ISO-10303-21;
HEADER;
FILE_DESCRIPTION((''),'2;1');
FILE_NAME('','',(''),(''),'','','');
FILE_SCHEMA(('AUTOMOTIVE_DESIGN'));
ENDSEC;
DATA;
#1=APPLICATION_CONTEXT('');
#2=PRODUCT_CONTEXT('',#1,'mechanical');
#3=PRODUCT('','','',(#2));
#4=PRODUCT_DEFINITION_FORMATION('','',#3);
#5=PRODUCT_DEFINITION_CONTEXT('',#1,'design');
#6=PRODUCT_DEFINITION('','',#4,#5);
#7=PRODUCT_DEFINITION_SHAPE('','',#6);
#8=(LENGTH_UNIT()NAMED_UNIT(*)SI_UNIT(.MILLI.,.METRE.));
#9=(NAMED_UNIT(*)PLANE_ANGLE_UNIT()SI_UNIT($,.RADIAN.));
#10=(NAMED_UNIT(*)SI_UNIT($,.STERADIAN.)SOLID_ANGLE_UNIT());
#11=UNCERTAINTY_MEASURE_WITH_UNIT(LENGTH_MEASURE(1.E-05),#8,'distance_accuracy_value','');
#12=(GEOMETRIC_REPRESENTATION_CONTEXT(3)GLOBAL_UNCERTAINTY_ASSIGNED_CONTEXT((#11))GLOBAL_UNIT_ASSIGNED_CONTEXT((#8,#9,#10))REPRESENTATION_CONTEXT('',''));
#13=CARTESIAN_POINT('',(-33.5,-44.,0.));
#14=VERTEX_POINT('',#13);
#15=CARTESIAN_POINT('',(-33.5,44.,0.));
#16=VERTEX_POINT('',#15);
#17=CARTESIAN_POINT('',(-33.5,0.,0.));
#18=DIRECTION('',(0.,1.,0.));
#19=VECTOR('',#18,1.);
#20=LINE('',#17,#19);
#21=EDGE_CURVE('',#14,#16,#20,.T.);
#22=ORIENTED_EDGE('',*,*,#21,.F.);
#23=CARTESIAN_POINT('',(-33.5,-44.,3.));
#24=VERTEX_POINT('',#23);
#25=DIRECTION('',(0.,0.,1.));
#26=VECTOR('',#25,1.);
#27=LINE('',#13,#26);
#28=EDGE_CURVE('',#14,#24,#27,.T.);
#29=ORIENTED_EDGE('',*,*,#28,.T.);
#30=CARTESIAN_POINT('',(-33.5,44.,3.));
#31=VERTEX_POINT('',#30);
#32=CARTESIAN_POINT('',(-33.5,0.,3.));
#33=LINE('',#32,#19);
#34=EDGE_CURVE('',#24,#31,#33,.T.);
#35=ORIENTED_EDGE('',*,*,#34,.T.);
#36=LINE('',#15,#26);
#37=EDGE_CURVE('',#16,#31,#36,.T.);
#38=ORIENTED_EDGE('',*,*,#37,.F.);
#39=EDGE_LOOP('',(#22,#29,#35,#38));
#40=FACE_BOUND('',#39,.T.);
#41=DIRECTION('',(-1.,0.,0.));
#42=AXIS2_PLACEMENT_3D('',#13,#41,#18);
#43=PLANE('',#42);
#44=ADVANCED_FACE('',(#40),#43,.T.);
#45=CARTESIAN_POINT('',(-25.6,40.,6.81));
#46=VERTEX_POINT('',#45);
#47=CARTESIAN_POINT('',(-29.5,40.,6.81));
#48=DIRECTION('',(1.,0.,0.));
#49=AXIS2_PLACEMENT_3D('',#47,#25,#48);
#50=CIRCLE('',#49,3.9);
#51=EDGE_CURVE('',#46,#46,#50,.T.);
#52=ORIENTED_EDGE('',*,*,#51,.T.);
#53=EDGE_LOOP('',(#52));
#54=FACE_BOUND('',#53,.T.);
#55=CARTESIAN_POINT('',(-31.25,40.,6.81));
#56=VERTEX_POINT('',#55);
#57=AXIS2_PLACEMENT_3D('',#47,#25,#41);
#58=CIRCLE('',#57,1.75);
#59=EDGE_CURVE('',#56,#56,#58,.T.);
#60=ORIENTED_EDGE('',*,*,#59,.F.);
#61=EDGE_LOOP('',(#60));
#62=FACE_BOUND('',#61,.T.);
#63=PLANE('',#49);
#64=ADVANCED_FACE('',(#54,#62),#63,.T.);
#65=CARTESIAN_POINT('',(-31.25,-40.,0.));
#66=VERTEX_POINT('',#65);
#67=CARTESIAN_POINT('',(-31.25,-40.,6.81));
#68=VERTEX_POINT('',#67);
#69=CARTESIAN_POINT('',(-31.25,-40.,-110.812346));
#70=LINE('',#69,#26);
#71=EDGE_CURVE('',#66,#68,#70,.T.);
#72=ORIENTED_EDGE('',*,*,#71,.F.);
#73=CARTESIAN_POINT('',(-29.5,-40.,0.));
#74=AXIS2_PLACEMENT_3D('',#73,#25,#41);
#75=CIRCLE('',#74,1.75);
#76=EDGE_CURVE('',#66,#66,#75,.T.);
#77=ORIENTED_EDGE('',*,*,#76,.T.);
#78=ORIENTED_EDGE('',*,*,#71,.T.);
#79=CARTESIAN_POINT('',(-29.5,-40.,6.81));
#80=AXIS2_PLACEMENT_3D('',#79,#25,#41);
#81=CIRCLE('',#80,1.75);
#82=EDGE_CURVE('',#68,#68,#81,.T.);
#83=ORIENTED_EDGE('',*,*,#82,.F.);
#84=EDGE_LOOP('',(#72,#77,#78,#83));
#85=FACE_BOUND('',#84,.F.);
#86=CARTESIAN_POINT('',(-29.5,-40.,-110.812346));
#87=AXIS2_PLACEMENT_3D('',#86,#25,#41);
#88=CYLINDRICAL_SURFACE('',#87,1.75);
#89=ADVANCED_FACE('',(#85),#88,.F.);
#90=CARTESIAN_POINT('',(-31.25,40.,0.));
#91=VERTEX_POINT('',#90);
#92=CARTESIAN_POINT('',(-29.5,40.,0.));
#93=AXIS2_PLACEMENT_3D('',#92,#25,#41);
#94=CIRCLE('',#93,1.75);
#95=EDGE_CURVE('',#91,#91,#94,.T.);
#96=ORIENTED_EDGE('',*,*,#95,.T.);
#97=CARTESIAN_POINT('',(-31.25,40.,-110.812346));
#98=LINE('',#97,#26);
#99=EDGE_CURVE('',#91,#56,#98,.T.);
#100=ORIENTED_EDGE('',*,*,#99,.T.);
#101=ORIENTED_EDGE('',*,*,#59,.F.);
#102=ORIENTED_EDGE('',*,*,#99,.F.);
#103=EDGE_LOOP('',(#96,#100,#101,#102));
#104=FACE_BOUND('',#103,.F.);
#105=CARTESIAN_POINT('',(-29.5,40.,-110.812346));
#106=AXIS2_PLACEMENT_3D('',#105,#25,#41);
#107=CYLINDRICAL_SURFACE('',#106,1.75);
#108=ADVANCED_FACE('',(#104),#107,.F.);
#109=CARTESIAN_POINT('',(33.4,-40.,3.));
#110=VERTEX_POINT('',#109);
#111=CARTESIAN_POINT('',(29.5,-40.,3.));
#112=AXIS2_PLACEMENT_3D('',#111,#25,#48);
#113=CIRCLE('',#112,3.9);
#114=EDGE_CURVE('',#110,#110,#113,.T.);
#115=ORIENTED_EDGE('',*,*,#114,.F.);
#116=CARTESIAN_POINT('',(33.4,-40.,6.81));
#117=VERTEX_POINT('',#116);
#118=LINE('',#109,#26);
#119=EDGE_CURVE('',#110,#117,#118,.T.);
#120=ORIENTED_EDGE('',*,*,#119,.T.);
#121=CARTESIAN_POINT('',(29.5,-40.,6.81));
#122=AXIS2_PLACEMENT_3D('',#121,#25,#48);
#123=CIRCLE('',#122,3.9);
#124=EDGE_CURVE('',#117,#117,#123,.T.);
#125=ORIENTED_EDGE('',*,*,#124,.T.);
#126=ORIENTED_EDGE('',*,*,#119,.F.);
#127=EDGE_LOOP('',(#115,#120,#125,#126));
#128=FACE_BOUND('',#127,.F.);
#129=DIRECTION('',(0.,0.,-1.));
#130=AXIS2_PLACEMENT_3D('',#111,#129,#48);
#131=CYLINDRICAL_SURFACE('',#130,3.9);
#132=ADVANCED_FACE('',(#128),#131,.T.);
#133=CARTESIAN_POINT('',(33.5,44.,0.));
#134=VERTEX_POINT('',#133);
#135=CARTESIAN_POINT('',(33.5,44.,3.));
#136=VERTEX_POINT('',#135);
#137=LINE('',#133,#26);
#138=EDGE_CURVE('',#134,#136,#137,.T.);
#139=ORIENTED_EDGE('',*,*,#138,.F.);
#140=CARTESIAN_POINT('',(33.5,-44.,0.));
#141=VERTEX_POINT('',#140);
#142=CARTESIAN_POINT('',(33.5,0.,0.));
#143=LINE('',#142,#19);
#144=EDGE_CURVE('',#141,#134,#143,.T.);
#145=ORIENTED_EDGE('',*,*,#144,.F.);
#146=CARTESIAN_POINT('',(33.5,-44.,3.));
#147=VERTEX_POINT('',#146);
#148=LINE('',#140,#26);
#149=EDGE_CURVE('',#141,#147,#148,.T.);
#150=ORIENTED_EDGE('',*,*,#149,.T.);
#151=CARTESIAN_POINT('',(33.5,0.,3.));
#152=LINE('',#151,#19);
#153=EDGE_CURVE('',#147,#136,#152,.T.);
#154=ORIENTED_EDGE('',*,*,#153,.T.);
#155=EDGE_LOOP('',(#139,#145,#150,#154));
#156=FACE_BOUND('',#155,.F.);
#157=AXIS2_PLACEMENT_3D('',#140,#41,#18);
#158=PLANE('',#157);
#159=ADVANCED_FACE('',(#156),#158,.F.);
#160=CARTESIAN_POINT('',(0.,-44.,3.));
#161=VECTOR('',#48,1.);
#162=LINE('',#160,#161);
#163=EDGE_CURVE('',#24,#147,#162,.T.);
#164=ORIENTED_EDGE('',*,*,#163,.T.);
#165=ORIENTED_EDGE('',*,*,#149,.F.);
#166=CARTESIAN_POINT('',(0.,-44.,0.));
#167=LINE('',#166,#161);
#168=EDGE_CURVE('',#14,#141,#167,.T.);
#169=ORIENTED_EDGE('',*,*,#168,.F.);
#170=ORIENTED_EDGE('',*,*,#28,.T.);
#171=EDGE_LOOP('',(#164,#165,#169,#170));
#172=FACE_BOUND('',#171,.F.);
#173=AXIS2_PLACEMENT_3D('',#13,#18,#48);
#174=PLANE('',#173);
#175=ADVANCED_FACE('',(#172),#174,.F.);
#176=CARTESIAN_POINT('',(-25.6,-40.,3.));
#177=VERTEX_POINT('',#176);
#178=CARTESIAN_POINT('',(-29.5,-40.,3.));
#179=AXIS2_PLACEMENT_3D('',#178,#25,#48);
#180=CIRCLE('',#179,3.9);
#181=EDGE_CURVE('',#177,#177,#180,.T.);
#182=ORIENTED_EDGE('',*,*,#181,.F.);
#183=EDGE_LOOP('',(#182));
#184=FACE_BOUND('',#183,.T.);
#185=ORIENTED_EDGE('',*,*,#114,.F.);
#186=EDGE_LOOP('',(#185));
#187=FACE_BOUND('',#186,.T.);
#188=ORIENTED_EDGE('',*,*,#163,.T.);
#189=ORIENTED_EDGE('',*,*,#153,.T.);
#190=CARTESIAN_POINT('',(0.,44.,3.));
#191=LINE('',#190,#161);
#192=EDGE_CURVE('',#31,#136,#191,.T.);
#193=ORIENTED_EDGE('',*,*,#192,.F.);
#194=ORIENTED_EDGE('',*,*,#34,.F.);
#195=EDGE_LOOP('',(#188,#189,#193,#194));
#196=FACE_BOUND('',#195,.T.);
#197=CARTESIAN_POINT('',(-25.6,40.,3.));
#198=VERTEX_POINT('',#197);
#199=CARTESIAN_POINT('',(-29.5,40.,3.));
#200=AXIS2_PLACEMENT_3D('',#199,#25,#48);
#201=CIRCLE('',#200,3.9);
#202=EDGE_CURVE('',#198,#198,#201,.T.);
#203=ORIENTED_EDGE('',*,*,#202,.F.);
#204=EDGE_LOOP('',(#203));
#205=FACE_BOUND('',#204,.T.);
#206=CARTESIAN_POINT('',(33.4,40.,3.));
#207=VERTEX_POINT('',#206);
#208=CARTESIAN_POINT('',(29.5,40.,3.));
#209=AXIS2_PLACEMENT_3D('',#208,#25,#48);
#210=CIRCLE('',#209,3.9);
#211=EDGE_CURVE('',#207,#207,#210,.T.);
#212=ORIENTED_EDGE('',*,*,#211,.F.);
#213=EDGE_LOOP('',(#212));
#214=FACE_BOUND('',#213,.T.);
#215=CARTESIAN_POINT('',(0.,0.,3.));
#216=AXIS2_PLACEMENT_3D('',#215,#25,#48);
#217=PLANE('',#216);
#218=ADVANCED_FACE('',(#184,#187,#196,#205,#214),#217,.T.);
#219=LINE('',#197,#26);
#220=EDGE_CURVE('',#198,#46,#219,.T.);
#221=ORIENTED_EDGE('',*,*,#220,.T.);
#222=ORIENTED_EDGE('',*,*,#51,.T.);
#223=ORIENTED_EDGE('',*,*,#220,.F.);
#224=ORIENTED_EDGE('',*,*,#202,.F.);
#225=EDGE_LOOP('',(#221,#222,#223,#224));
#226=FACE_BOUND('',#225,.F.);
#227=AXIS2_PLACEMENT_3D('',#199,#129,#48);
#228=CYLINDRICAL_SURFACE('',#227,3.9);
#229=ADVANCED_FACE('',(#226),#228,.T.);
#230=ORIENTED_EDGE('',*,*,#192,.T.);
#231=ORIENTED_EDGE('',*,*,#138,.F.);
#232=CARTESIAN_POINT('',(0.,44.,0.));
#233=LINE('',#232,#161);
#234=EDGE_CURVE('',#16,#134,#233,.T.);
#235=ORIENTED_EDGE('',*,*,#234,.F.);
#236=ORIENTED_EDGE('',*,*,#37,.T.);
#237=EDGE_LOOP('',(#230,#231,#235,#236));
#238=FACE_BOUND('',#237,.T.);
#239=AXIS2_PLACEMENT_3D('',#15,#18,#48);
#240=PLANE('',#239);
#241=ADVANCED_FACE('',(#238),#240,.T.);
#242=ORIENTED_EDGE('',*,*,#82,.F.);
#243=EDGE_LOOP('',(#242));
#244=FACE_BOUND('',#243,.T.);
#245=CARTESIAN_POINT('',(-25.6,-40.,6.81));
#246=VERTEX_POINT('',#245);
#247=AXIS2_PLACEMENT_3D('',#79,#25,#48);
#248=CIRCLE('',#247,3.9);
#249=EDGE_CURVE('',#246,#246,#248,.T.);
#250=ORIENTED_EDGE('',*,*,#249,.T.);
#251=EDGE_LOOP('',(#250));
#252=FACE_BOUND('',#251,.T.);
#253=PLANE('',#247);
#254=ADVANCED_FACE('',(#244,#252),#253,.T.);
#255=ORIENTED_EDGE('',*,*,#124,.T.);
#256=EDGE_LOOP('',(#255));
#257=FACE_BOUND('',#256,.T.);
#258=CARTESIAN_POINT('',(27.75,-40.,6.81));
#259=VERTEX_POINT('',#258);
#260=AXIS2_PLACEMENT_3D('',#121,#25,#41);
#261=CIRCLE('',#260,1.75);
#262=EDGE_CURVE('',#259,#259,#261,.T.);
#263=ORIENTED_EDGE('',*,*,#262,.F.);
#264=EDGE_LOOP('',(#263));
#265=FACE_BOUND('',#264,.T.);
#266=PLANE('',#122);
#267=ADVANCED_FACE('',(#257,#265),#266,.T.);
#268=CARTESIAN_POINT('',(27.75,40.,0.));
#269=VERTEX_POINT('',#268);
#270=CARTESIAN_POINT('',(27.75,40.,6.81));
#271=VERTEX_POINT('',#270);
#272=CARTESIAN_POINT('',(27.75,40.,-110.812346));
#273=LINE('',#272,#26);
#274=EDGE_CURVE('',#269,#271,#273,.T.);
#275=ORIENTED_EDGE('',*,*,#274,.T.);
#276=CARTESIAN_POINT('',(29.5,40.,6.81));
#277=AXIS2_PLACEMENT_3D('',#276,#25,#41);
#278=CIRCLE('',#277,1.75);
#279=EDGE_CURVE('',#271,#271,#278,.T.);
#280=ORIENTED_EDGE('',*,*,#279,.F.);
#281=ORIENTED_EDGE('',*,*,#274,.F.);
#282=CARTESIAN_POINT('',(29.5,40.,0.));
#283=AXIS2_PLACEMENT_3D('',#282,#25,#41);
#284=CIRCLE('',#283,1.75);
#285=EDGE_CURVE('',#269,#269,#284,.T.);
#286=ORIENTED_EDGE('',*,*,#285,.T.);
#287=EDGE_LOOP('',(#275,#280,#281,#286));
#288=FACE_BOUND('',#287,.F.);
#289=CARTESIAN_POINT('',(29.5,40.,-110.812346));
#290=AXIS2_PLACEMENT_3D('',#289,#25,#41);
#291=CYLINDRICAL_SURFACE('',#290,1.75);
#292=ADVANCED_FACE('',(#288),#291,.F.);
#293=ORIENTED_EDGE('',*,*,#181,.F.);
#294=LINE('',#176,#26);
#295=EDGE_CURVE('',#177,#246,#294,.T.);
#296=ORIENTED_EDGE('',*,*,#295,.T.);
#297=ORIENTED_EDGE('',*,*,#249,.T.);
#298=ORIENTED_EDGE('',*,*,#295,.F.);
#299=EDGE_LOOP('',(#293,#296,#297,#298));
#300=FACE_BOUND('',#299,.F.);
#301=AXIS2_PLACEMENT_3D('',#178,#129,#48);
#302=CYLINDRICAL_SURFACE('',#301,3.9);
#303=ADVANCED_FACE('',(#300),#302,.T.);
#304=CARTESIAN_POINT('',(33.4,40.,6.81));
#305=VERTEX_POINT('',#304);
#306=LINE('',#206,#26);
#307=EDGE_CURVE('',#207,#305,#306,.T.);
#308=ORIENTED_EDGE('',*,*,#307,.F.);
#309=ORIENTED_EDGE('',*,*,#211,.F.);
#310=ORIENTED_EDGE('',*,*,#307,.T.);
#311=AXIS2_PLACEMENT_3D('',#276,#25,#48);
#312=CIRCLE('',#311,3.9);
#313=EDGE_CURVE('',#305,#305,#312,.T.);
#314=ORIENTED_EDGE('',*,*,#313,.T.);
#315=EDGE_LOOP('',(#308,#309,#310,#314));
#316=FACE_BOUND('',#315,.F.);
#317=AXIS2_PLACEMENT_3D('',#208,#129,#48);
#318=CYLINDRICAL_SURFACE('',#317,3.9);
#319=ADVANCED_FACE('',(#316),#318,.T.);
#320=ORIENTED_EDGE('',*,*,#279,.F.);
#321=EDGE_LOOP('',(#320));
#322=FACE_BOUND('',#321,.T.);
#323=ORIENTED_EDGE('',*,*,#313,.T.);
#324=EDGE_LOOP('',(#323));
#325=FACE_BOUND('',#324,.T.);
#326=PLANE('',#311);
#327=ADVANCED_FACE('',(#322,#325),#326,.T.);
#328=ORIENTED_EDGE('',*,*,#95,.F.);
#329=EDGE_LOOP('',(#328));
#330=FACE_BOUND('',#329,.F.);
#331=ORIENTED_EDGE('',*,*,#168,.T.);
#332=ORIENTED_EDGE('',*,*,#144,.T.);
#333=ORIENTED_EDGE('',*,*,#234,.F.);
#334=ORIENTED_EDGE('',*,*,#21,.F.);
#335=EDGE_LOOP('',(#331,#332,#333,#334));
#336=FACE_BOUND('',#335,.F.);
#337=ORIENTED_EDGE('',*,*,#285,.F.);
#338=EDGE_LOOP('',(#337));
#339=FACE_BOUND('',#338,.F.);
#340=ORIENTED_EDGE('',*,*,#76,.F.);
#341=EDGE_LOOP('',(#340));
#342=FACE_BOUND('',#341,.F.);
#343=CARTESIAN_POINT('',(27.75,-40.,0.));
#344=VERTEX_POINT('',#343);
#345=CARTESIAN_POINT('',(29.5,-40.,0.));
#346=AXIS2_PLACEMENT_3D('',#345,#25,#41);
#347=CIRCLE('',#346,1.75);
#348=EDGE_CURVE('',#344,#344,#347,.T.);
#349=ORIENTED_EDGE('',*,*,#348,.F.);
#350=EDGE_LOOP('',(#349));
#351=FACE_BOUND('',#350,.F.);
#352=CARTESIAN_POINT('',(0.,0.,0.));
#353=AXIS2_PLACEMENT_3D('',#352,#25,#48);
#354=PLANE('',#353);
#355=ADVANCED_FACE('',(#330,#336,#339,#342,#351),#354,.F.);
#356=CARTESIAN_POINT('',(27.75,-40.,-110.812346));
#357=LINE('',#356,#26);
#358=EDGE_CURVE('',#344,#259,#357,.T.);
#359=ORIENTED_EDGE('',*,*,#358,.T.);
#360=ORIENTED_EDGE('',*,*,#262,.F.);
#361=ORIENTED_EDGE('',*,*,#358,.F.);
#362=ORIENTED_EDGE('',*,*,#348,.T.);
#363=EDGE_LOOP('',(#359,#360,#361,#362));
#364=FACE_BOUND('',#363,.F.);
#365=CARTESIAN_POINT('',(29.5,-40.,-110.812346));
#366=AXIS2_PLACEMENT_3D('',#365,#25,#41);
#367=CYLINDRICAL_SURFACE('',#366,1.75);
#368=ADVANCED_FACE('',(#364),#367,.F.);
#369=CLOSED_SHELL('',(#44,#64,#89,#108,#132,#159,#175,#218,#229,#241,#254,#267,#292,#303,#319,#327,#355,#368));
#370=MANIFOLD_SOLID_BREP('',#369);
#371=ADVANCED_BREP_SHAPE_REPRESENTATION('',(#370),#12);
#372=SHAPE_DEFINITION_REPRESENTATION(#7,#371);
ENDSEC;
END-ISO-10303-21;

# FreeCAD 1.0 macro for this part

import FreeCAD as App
import Part
import Sketcher
Q = App.Units.Quantity


def add_polygon(sketch, points):
    """Adds a closed chain of lines whose ends are joined by coincident constraints."""
    first, n = sketch.GeometryCount, len(points)
    for a, b in zip(points, points[1:] + points[:1]):
        sketch.addGeometry(Part.LineSegment(App.Vector(*a, 0), App.Vector(*b, 0)), False)
    for i in range(n):
        sketch.addConstraint(Sketcher.Constraint("Coincident", first + i, 2, first + (i + 1) % n, 1))

doc = App.newDocument("Part")
body = doc.addObject("PartDesign::Body", "Body")

sketch1 = doc.addObject("Sketcher::SketchObject", "Sketch")
body.addObject(sketch1)
sketch1.AttachmentSupport = (doc.XY_Plane, [""])
sketch1.MapMode = "FlatFace"
add_polygon(sketch1, [(-34, 44), (-34, -44), (34, -44), (34, 44)])
sketch1.addConstraint([
    Sketcher.Constraint("Vertical", 0),
    Sketcher.Constraint("Horizontal", 1),
    Sketcher.Constraint("Vertical", 2),
    Sketcher.Constraint("Horizontal", 3),
    Sketcher.Constraint("Symmetric", 0, 2, 2, 2, -1, 1),
    Sketcher.Constraint("DistanceX", 1, 1, 1, 2, Q("67 mm")),
    Sketcher.Constraint("DistanceY", 0, 2, 0, 1, Q("88 mm")),
])
pad1 = doc.addObject("PartDesign::Pad", "Pad")
body.addObject(pad1)
pad1.Profile = sketch1
pad1.Length = 3

sketch2 = doc.addObject("Sketcher::SketchObject", "Sketch001")
body.addObject(sketch2)
sketch2.AttachmentSupport = (doc.XY_Plane, [""])
sketch2.MapMode = "FlatFace"
sketch2.AttachmentOffset = App.Placement(App.Vector(0, 0, 3), App.Rotation())
sketch2.addGeometry([
    Part.Circle(App.Vector(-29.5, 40, 0), App.Vector(0, 0, 1), 3.9),
    Part.Circle(App.Vector(29.5, 40, 0), App.Vector(0, 0, 1), 3.9),
    Part.Circle(App.Vector(-29.5, -40, 0), App.Vector(0, 0, 1), 3.9),
    Part.Circle(App.Vector(29.5, -40, 0), App.Vector(0, 0, 1), 3.9),
], False)
sketch2.addConstraint([
    Sketcher.Constraint("Equal", 0, 1),
    Sketcher.Constraint("Equal", 1, 2),
    Sketcher.Constraint("Equal", 2, 3),
    Sketcher.Constraint("Symmetric", 1, 3, 2, 3, -1, 1),
    Sketcher.Constraint("Symmetric", 0, 3, 3, 3, -1, 1),
    Sketcher.Constraint("Symmetric", 0, 3, 1, 3, -2),
    Sketcher.Constraint("Diameter", 0, Q("7.8 mm")),
    Sketcher.Constraint("DistanceY", -1, 1, 0, 3, Q("40 mm")),
    Sketcher.Constraint("DistanceX", 0, 3, 1, 3, Q("59 mm")),
])
pad2 = doc.addObject("PartDesign::Pad", "Pad001")
body.addObject(pad2)
pad2.Profile = sketch2
pad2.Length = 3.81

sketch3 = doc.addObject("Sketcher::SketchObject", "Sketch002")
body.addObject(sketch3)
sketch3.AttachmentSupport = (doc.XY_Plane, [""])
sketch3.MapMode = "FlatFace"
sketch3.addGeometry([
    Part.Circle(App.Vector(29.5, -40, 0), App.Vector(0, 0, 1), 1.8),
    Part.Circle(App.Vector(-29.5, -40, 0), App.Vector(0, 0, 1), 1.8),
    Part.Circle(App.Vector(-29.5, 40, 0), App.Vector(0, 0, 1), 1.8),
    Part.Circle(App.Vector(29.5, 40, 0), App.Vector(0, 0, 1), 1.8),
], False)
sketch3.addConstraint([
    Sketcher.Constraint("Equal", 0, 1),
    Sketcher.Constraint("Equal", 1, 2),
    Sketcher.Constraint("Equal", 2, 3),
    Sketcher.Constraint("Symmetric", 0, 3, 2, 3, -1, 1),
    Sketcher.Constraint("Symmetric", 1, 3, 3, 3, -1, 1),
    Sketcher.Constraint("Symmetric", 0, 3, 1, 3, -2),
    Sketcher.Constraint("Diameter", 0, Q("3.5 mm")),
    Sketcher.Constraint("DistanceY", 0, 3, -1, 1, Q("40 mm")),
    Sketcher.Constraint("DistanceX", 1, 3, 0, 3, Q("59 mm")),
])
doc.recompute()
hole = doc.addObject("PartDesign::Hole", "Hole")
body.addObject(hole)
hole.Profile = sketch3
hole.ThreadType = "None"
hole.Diameter = 3.5
hole.DepthType = "ThroughAll"
hole.Reversed = True

doc.recompute()
